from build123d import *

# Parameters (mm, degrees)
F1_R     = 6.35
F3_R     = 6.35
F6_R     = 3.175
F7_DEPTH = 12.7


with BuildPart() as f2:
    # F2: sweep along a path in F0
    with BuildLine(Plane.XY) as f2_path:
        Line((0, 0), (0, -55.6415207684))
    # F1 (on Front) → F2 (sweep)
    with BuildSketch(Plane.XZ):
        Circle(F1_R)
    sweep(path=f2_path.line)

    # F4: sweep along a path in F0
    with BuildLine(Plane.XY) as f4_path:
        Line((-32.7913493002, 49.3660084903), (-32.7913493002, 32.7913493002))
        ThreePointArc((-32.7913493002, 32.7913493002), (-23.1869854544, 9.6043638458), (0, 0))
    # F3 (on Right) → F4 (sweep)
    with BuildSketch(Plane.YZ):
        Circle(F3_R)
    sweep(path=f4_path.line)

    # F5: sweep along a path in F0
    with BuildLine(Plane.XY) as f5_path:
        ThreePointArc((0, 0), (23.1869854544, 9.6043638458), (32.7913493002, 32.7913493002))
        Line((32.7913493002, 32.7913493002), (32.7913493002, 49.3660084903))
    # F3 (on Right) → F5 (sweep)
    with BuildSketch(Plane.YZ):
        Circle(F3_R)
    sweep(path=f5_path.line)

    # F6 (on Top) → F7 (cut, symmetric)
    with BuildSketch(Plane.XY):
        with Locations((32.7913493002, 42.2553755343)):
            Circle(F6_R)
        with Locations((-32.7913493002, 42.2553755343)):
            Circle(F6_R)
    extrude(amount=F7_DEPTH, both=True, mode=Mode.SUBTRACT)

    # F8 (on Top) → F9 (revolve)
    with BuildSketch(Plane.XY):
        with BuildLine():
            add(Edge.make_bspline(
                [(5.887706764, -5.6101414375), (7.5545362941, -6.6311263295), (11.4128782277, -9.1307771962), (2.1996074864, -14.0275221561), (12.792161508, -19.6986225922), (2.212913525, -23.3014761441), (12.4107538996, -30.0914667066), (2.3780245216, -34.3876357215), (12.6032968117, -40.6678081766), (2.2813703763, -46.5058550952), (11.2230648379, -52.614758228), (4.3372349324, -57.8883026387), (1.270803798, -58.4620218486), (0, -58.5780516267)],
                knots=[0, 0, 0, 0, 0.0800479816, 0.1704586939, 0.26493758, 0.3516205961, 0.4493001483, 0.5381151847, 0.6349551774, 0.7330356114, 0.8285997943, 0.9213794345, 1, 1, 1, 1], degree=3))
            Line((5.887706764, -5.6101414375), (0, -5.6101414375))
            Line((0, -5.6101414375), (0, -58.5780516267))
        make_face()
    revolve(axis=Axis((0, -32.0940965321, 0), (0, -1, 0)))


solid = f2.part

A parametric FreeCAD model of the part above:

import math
import FreeCAD as App
import Part
import Sketcher
Q = App.Units.Quantity

doc = App.newDocument("Part")
params = doc.addObject("Spreadsheet::Sheet", "Params")
for row, (alias, value) in enumerate([
    ("sketch1_diameter", "0.5 in"),
    ("sketch3_diameter", "0.5 in"),
    ("sketch5_diameter", "0.5 in"),
    ("sketch7_diameter", "0.25 in"),
    ("pocket1_length", "1 in"),
    ("revolution_angle", "360 deg"),
], start=1):
    params.set(f"A{row}", alias)
    params.set(f"B{row}", "=" + value)
    params.setAlias(f"B{row}", alias)

body = doc.addObject("PartDesign::Body", "Body")

# Sketch on XZ plane
sketch1 = body.newObject("Sketcher::SketchObject", "Sketch")
sketch1.AttachmentSupport = (doc.getObject("XZ_Plane"), [""])
sketch1.MapMode = "FlatFace"
sketch1.addGeometry(Part.Circle(App.Vector(0, 0, 0), App.Vector(0, 0, 1), 6), False)
sketch1.addConstraint(Sketcher.Constraint("Coincident", 0, 3, -1, 1))
sketch1.addConstraint(Sketcher.Constraint("Diameter", 0, Q("0.5 in")))
sketch1.setExpression("Constraints[1]", "Params.sketch1_diameter")

# Sketch on XY plane
sketch2 = body.newObject("Sketcher::SketchObject", "Sketch001")
sketch2.AttachmentSupport = (doc.getObject("XY_Plane"), [""])
sketch2.MapMode = "FlatFace"
sketch2.addGeometry(Part.LineSegment(App.Vector(0, 0, 0), App.Vector(0, -56, 0)), False)
sketch2.addConstraint(Sketcher.Constraint("Vertical", 0))
sketch2.addConstraint(Sketcher.Constraint("Coincident", 0, 1, -1, 1))
sketch2.addConstraint(Sketcher.Constraint("DistanceY", 0, 2, 0, 1, Q("55.641521 mm")))
doc.recompute()

additivepipe = body.newObject("PartDesign::AdditivePipe", "AdditivePipe")
additivepipe.Profile = sketch1
additivepipe.Spine = (sketch2, ["Edge1"])

# Sketch on YZ plane
sketch3 = body.newObject("Sketcher::SketchObject", "Sketch002")
sketch3.AttachmentSupport = (doc.getObject("YZ_Plane"), [""])
sketch3.MapMode = "FlatFace"
sketch3.addGeometry(Part.Circle(App.Vector(0, 0, 0), App.Vector(0, 0, 1), 6), False)
sketch3.addConstraint(Sketcher.Constraint("Coincident", 0, 3, -1, 1))
sketch3.addConstraint(Sketcher.Constraint("Diameter", 0, Q("0.5 in")))
sketch3.setExpression("Constraints[1]", "Params.sketch3_diameter")

# Sketch on XY plane
sketch4 = body.newObject("Sketcher::SketchObject", "Sketch003")
sketch4.AttachmentSupport = (doc.getObject("XY_Plane"), [""])
sketch4.MapMode = "FlatFace"
sketch4.addGeometry(Part.LineSegment(App.Vector(-33, 49, 0), App.Vector(-33, 33, 0)), False)
sketch4.addGeometry(Part.ArcOfCircle(Part.Circle(App.Vector(0, 33, 0), App.Vector(0, 0, 1), 33), math.radians(180), math.radians(270)), False)
sketch4.addConstraint(Sketcher.Constraint("Tangent", 0, 2, 1, 1))
sketch4.addConstraint(Sketcher.Constraint("Vertical", 0))
sketch4.addConstraint(Sketcher.Constraint("Coincident", 1, 2, -1, 1))
sketch4.addConstraint(Sketcher.Constraint("PointOnObject", 1, 3, -2))
sketch4.addConstraint(Sketcher.Constraint("Radius", 1, Q("32.791349 mm")))
sketch4.addConstraint(Sketcher.Constraint("DistanceY", 0, 2, 0, 1, Q("16.574659 mm")))
doc.recompute()

additivepipe2 = body.newObject("PartDesign::AdditivePipe", "AdditivePipe001")
additivepipe2.Profile = sketch3
additivepipe2.Spine = (sketch4, ["Edge1", "Edge2"])

# Sketch on YZ plane
sketch5 = body.newObject("Sketcher::SketchObject", "Sketch004")
sketch5.AttachmentSupport = (doc.getObject("YZ_Plane"), [""])
sketch5.MapMode = "FlatFace"
sketch5.addGeometry(Part.Circle(App.Vector(0, 0, 0), App.Vector(0, 0, 1), 6), False)
sketch5.addConstraint(Sketcher.Constraint("Coincident", 0, 3, -1, 1))
sketch5.addConstraint(Sketcher.Constraint("Diameter", 0, Q("0.5 in")))
sketch5.setExpression("Constraints[1]", "Params.sketch5_diameter")

# Sketch on XY plane
sketch6 = body.newObject("Sketcher::SketchObject", "Sketch005")
sketch6.AttachmentSupport = (doc.getObject("XY_Plane"), [""])
sketch6.MapMode = "FlatFace"
sketch6.addGeometry(Part.ArcOfCircle(Part.Circle(App.Vector(0, 33, 0), App.Vector(0, 0, 1), 33), math.radians(-90), math.radians(0)), False)
sketch6.addGeometry(Part.LineSegment(App.Vector(33, 33, 0), App.Vector(33, 49, 0)), False)
sketch6.addConstraint(Sketcher.Constraint("Tangent", 0, 2, 1, 1))
sketch6.addConstraint(Sketcher.Constraint("Vertical", 1))
sketch6.addConstraint(Sketcher.Constraint("Coincident", 0, 1, -1, 1))
sketch6.addConstraint(Sketcher.Constraint("PointOnObject", 0, 3, -2))
sketch6.addConstraint(Sketcher.Constraint("Radius", 0, Q("32.791349 mm")))
sketch6.addConstraint(Sketcher.Constraint("DistanceY", 1, 1, 1, 2, Q("16.574659 mm")))
doc.recompute()

additivepipe3 = body.newObject("PartDesign::AdditivePipe", "AdditivePipe002")
additivepipe3.Profile = sketch5
additivepipe3.Spine = (sketch6, ["Edge1", "Edge2"])

# Sketch on XY plane
sketch7 = body.newObject("Sketcher::SketchObject", "Sketch006")
sketch7.AttachmentSupport = (doc.getObject("XY_Plane"), [""])
sketch7.MapMode = "FlatFace"
sketch7.addGeometry(Part.Circle(App.Vector(32.8, 42.3, 0), App.Vector(0, 0, 1), 3.2), False)
sketch7.addGeometry(Part.Circle(App.Vector(-32.8, 42.3, 0), App.Vector(0, 0, 1), 3.2), False)
sketch7.addConstraint(Sketcher.Constraint("Equal", 0, 1))
sketch7.addConstraint(Sketcher.Constraint("Symmetric", 0, 3, 1, 3, -2))
sketch7.addConstraint(Sketcher.Constraint("Diameter", 0, Q("0.25 in")))
sketch7.addConstraint(Sketcher.Constraint("DistanceX", 1, 3, 0, 3, Q("65.582699 mm")))
sketch7.addConstraint(Sketcher.Constraint("DistanceY", -1, 1, 0, 3, Q("42.255376 mm")))
sketch7.setExpression("Constraints[2]", "Params.sketch7_diameter")
pocket1 = body.newObject("PartDesign::Pocket", "Pocket")
pocket1.Profile = sketch7
pocket1.setExpression("Length", "Params.pocket1_length")
pocket1.Midplane = True

# Sketch on XY plane
sketch8 = body.newObject("Sketcher::SketchObject", "Sketch007")
sketch8.AttachmentSupport = (doc.getObject("XY_Plane"), [""])
sketch8.MapMode = "FlatFace"
sketch8.addGeometry(Part.BSplineCurve([App.Vector(5.887707, -5.610141, 0), App.Vector(7.554536, -6.631126, 0), App.Vector(11.412878, -9.130777, 0), App.Vector(2.199607, -14.027522, 0), App.Vector(12.792162, -19.698623, 0), App.Vector(2.212914, -23.301476, 0), App.Vector(12.410754, -30.091467, 0), App.Vector(2.378025, -34.387636, 0), App.Vector(12.603297, -40.667808, 0), App.Vector(2.28137, -46.505855, 0), App.Vector(11.223065, -52.614758, 0), App.Vector(4.337235, -57.888303, 0), App.Vector(1.270804, -58.462022, 0), App.Vector(0, -58.578052, 0)], [4, 1, 1, 1, 1, 1, 1, 1, 1, 1, 1, 4], [0, 0.080047982, 0.170458694, 0.26493758, 0.351620596, 0.449300148, 0.538115185, 0.634955177, 0.733035611, 0.828599794, 0.921379435, 1], False, 3, [1, 1, 1, 1, 1, 1, 1, 1, 1, 1, 1, 1, 1, 1], False), False)
sketch8.addGeometry(Part.LineSegment(App.Vector(5.887707, -5.610141, 0), App.Vector(0, -5.610141, 0)), False)
sketch8.addGeometry(Part.LineSegment(App.Vector(0, -5.610141, 0), App.Vector(0, -58.578052, 0)), False)
sketch8.addConstraint(Sketcher.Constraint("Block", 0))
sketch8.addConstraint(Sketcher.Constraint("Coincident", 0, 1, 1, 1))
sketch8.addConstraint(Sketcher.Constraint("Coincident", 1, 2, 2, 1))
sketch8.addConstraint(Sketcher.Constraint("Coincident", 2, 2, 0, 2))
sketch8.addConstraint(Sketcher.Constraint("Horizontal", 1))
sketch8.addConstraint(Sketcher.Constraint("Vertical", 2))
revolution = body.newObject("PartDesign::Revolution", "Revolution")
revolution.Profile = sketch8
revolution.ReferenceAxis = (sketch8, ["V_Axis"])
revolution.setExpression("Angle", "Params.revolution_angle")

doc.recompute()
